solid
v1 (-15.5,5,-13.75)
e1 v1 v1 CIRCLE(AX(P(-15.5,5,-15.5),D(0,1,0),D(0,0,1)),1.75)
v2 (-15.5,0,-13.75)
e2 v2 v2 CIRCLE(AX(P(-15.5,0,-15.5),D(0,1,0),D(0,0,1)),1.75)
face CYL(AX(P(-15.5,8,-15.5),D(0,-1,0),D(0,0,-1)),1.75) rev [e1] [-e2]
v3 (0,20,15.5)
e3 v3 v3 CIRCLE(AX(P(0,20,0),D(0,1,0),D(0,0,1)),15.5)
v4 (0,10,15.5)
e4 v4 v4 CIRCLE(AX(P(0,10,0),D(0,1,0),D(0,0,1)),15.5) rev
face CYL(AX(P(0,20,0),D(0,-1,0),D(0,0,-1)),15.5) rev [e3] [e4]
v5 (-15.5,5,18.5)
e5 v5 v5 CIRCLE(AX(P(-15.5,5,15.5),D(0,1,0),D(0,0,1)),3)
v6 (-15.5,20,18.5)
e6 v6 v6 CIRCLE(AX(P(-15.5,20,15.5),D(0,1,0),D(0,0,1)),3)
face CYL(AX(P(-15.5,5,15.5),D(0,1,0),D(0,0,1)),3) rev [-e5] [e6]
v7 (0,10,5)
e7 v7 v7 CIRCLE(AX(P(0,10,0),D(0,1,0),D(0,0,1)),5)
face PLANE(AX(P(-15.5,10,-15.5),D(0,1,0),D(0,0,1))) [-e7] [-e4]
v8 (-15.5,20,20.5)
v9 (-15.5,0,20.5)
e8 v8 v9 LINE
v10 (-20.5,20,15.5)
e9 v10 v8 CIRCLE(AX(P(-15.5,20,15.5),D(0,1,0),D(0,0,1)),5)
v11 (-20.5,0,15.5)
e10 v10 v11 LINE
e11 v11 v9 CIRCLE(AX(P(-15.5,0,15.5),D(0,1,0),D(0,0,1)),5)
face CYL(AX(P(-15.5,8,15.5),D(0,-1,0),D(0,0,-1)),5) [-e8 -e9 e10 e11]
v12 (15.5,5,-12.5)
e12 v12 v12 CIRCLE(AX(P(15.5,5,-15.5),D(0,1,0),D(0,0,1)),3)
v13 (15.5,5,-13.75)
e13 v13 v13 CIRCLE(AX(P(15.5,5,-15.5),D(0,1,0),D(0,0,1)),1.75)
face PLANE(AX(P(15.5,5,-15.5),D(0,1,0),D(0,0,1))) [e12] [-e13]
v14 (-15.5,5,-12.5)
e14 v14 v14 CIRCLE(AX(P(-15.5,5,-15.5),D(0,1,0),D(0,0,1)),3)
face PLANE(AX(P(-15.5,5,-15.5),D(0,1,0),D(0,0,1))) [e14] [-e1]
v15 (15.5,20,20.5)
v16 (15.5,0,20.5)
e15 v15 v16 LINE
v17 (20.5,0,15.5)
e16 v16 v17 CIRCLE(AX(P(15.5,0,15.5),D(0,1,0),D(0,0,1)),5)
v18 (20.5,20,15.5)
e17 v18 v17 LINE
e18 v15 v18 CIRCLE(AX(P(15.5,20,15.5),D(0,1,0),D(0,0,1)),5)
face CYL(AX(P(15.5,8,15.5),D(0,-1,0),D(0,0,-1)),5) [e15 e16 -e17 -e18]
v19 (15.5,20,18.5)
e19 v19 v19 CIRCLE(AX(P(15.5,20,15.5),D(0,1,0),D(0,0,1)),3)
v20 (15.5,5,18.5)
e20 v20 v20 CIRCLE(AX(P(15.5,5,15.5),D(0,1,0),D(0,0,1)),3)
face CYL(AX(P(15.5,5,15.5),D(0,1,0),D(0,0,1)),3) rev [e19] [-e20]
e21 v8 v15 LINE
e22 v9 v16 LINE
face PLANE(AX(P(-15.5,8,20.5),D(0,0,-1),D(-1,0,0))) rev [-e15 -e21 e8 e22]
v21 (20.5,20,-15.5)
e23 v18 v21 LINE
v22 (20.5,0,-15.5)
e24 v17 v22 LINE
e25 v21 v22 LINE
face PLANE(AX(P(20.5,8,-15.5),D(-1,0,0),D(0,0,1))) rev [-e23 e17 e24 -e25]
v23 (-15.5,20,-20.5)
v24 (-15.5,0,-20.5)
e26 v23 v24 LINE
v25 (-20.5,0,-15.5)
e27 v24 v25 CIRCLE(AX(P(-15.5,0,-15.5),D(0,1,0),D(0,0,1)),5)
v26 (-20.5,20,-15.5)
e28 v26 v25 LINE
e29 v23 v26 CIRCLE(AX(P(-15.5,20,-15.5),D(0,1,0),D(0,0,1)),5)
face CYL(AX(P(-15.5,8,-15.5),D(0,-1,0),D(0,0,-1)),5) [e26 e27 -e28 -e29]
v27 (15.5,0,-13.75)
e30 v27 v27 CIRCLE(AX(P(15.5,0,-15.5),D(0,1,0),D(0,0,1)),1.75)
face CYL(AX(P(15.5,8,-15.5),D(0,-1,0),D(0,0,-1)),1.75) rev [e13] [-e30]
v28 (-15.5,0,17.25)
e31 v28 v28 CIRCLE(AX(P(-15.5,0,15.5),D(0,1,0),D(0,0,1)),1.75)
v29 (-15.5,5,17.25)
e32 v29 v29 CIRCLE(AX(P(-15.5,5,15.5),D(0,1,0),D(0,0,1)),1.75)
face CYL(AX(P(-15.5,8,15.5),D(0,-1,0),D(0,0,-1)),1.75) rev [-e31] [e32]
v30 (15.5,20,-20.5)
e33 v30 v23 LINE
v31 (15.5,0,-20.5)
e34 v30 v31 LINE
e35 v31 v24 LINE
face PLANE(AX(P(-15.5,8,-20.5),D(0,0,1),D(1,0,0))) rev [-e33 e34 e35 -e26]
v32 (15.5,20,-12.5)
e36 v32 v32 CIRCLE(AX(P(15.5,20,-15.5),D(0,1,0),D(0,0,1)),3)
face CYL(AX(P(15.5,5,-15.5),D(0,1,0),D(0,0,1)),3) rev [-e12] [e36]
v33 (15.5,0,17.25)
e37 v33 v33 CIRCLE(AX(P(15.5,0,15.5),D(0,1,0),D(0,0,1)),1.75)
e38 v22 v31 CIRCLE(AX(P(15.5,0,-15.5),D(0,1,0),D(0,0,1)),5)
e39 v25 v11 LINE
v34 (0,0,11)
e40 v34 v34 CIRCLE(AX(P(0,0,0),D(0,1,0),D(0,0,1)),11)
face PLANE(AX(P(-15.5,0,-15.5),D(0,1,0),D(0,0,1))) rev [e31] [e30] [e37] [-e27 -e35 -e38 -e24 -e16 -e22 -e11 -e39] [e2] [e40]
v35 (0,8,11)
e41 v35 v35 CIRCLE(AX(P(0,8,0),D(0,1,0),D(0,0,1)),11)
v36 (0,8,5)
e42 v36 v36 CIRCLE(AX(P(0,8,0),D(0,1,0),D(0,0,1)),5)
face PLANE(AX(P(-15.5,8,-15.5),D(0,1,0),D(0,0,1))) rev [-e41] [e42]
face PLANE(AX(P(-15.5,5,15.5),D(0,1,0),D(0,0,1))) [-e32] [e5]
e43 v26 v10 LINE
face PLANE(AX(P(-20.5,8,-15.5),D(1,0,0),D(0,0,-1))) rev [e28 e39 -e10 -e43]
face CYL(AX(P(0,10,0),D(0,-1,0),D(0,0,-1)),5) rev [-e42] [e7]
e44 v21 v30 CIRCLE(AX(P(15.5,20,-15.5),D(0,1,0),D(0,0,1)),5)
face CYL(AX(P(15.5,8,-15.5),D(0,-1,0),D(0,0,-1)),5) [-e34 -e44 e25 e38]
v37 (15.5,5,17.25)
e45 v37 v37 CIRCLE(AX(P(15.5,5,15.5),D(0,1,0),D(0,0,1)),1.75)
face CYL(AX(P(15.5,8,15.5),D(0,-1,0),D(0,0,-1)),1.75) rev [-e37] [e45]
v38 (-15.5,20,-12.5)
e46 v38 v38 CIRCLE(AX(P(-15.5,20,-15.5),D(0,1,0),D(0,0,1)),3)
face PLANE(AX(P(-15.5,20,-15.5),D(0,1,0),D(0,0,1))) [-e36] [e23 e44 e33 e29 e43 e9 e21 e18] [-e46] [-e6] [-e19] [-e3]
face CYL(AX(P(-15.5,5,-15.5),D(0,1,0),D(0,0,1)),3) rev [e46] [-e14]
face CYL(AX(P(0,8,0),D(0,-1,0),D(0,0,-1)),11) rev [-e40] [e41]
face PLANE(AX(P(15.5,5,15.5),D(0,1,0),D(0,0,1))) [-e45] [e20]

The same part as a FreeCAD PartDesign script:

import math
import FreeCAD as App
import Part
import Sketcher

V = App.Vector

doc = App.newDocument("Part")
body = doc.addObject("PartDesign::Body", "Body")

sketch1 = body.newObject("Sketcher::SketchObject", "Sketch")
sketch1.AttachmentSupport = (doc.getObject("XZ_Plane"), [""])
sketch1.MapMode = "FlatFace"
sketch1.addGeometry(Part.LineSegment(V(15.5, -20.5, 0), V(-15.5, -20.5, 0)), False)
sketch1.addGeometry(Part.ArcOfCircle(Part.Circle(V(-15.5, -15.5, 0), V(0, 0, 1), 5), math.radians(180), math.radians(270)), False)
sketch1.addGeometry(Part.LineSegment(V(-20.5, -15.5, 0), V(-20.5, 15.5, 0)), False)
sketch1.addGeometry(Part.ArcOfCircle(Part.Circle(V(-15.5, 15.5, 0), V(0, 0, 1), 5), math.radians(90), math.radians(180)), False)
sketch1.addGeometry(Part.LineSegment(V(-15.5, 20.5, 0), V(15.5, 20.5, 0)), False)
sketch1.addGeometry(Part.ArcOfCircle(Part.Circle(V(15.5, 15.5, 0), V(0, 0, 1), 5), math.radians(0), math.radians(90)), False)
sketch1.addGeometry(Part.LineSegment(V(20.5, 15.5, 0), V(20.5, -15.5, 0)), False)
sketch1.addGeometry(Part.ArcOfCircle(Part.Circle(V(15.5, -15.5, 0), V(0, 0, 1), 5), math.radians(-90), math.radians(0)), False)
sketch1.addGeometry(Part.Circle(V(15.5, 15.5, 0), V(0, 0, 1), 1.8), False)
sketch1.addGeometry(Part.Circle(V(-15.5, 15.5, 0), V(0, 0, 1), 1.8), False)
sketch1.addGeometry(Part.Circle(V(15.5, -15.5, 0), V(0, 0, 1), 1.8), False)
sketch1.addGeometry(Part.Circle(V(0, 0, 0), V(0, 0, 1), 11), False)
sketch1.addGeometry(Part.Circle(V(-15.5, -15.5, 0), V(0, 0, 1), 1.8), False)
sketch1.addConstraint(Sketcher.Constraint("Tangent", 0, 2, 1, 2))
sketch1.addConstraint(Sketcher.Constraint("Tangent", 1, 1, 2, 1))
sketch1.addConstraint(Sketcher.Constraint("Tangent", 2, 2, 3, 2))
sketch1.addConstraint(Sketcher.Constraint("Tangent", 3, 1, 4, 1))
sketch1.addConstraint(Sketcher.Constraint("Tangent", 4, 2, 5, 2))
sketch1.addConstraint(Sketcher.Constraint("Tangent", 5, 1, 6, 1))
sketch1.addConstraint(Sketcher.Constraint("Tangent", 6, 2, 7, 2))
sketch1.addConstraint(Sketcher.Constraint("Tangent", 7, 1, 0, 1))
sketch1.addConstraint(Sketcher.Constraint("Horizontal", 0))
sketch1.addConstraint(Sketcher.Constraint("Vertical", 2))
sketch1.addConstraint(Sketcher.Constraint("Horizontal", 4))
sketch1.addConstraint(Sketcher.Constraint("Vertical", 6))
sketch1.addConstraint(Sketcher.Constraint("Coincident", 11, 3, -1, 1))
sketch1.addConstraint(Sketcher.Constraint("Coincident", 8, 3, 5, 3))
sketch1.addConstraint(Sketcher.Constraint("Coincident", 9, 3, 3, 3))
sketch1.addConstraint(Sketcher.Constraint("Coincident", 10, 3, 7, 3))
sketch1.addConstraint(Sketcher.Constraint("Coincident", 12, 3, 1, 3))
sketch1.addConstraint(Sketcher.Constraint("Equal", 1, 3))
sketch1.addConstraint(Sketcher.Constraint("Equal", 3, 5))
sketch1.addConstraint(Sketcher.Constraint("Equal", 5, 7))
sketch1.addConstraint(Sketcher.Constraint("Equal", 8, 9))
sketch1.addConstraint(Sketcher.Constraint("Equal", 9, 10))
sketch1.addConstraint(Sketcher.Constraint("Equal", 10, 12))
sketch1.addConstraint(Sketcher.Constraint("Symmetric", 1, 3, 5, 3, -1, 1))
sketch1.addConstraint(Sketcher.Constraint("Equal", 4, 2))
sketch1.addConstraint(Sketcher.Constraint("Diameter", 11, 22.0))
sketch1.addConstraint(Sketcher.Constraint("Radius", 1, 5.0))
sketch1.addConstraint(Sketcher.Constraint("Diameter", 8, 3.5))
sketch1.addConstraint(Sketcher.Constraint("DistanceX", 0, 2, 0, 1, 31.0))
pad1 = body.newObject("PartDesign::Pad", "Pad")
pad1.Profile = sketch1
pad1.Length = 8
pad1.Reversed = True

sketch2 = body.newObject("Sketcher::SketchObject", "Sketch001")
sketch2.AttachmentSupport = (doc.getObject("XZ_Plane"), [""])
sketch2.MapMode = "FlatFace"
sketch2.AttachmentOffset = App.Placement(V(0, 0, -8), App.Rotation())
sketch2.addGeometry(Part.LineSegment(V(-20.5, -15.5, 0), V(-20.5, 15.5, 0)), False)
sketch2.addGeometry(Part.ArcOfCircle(Part.Circle(V(-15.5, 15.5, 0), V(0, 0, 1), 5), math.radians(90), math.radians(180)), False)
sketch2.addGeometry(Part.LineSegment(V(-15.5, 20.5, 0), V(15.5, 20.5, 0)), False)
sketch2.addGeometry(Part.ArcOfCircle(Part.Circle(V(15.5, 15.5, 0), V(0, 0, 1), 5), math.radians(0), math.radians(90)), False)
sketch2.addGeometry(Part.LineSegment(V(20.5, 15.5, 0), V(20.5, -15.5, 0)), False)
sketch2.addGeometry(Part.ArcOfCircle(Part.Circle(V(15.5, -15.5, 0), V(0, 0, 1), 5), math.radians(-90), math.radians(0)), False)
sketch2.addGeometry(Part.LineSegment(V(15.5, -20.5, 0), V(-15.5, -20.5, 0)), False)
sketch2.addGeometry(Part.ArcOfCircle(Part.Circle(V(-15.5, -15.5, 0), V(0, 0, 1), 5), math.radians(180), math.radians(270)), False)
sketch2.addGeometry(Part.Circle(V(-15.5, 15.5, 0), V(0, 0, 1), 1.8), False)
sketch2.addGeometry(Part.Circle(V(15.5, 15.5, 0), V(0, 0, 1), 1.8), False)
sketch2.addGeometry(Part.Circle(V(-15.5, -15.5, 0), V(0, 0, 1), 1.8), False)
sketch2.addGeometry(Part.Circle(V(0, 0, 0), V(0, 0, 1), 5), False)
sketch2.addGeometry(Part.Circle(V(15.5, -15.5, 0), V(0, 0, 1), 1.8), False)
sketch2.addConstraint(Sketcher.Constraint("Tangent", 0, 2, 1, 2))
sketch2.addConstraint(Sketcher.Constraint("Tangent", 1, 1, 2, 1))
sketch2.addConstraint(Sketcher.Constraint("Tangent", 2, 2, 3, 2))
sketch2.addConstraint(Sketcher.Constraint("Tangent", 3, 1, 4, 1))
sketch2.addConstraint(Sketcher.Constraint("Tangent", 4, 2, 5, 2))
sketch2.addConstraint(Sketcher.Constraint("Tangent", 5, 1, 6, 1))
sketch2.addConstraint(Sketcher.Constraint("Tangent", 6, 2, 7, 2))
sketch2.addConstraint(Sketcher.Constraint("Tangent", 7, 1, 0, 1))
sketch2.addConstraint(Sketcher.Constraint("Vertical", 0))
sketch2.addConstraint(Sketcher.Constraint("Horizontal", 2))
sketch2.addConstraint(Sketcher.Constraint("Vertical", 4))
sketch2.addConstraint(Sketcher.Constraint("Horizontal", 6))
sketch2.addConstraint(Sketcher.Constraint("Coincident", 11, 3, -1, 1))
sketch2.addConstraint(Sketcher.Constraint("Coincident", 8, 3, 1, 3))
sketch2.addConstraint(Sketcher.Constraint("Coincident", 9, 3, 3, 3))
sketch2.addConstraint(Sketcher.Constraint("Coincident", 10, 3, 7, 3))
sketch2.addConstraint(Sketcher.Constraint("Coincident", 12, 3, 5, 3))
sketch2.addConstraint(Sketcher.Constraint("Equal", 1, 3))
sketch2.addConstraint(Sketcher.Constraint("Equal", 3, 5))
sketch2.addConstraint(Sketcher.Constraint("Equal", 5, 7))
sketch2.addConstraint(Sketcher.Constraint("Equal", 8, 9))
sketch2.addConstraint(Sketcher.Constraint("Equal", 9, 10))
sketch2.addConstraint(Sketcher.Constraint("Equal", 7, 11))
sketch2.addConstraint(Sketcher.Constraint("Equal", 10, 12))
sketch2.addConstraint(Sketcher.Constraint("Symmetric", 1, 3, 5, 3, -1, 1))
sketch2.addConstraint(Sketcher.Constraint("Equal", 6, 0))
sketch2.addConstraint(Sketcher.Constraint("Diameter", 11, 10.0))
sketch2.addConstraint(Sketcher.Constraint("Diameter", 8, 3.5))
sketch2.addConstraint(Sketcher.Constraint("DistanceX", 2, 1, 2, 2, 31.0))
pad2 = body.newObject("PartDesign::Pad", "Pad001")
pad2.Profile = sketch2
pad2.Length = 2
pad2.Reversed = True

sketch3 = body.newObject("Sketcher::SketchObject", "Sketch002")
sketch3.AttachmentSupport = (doc.getObject("XZ_Plane"), [""])
sketch3.MapMode = "FlatFace"
sketch3.AttachmentOffset = App.Placement(V(0, 0, -10), App.Rotation())
sketch3.addGeometry(Part.LineSegment(V(-20.5, -15.5, 0), V(-20.5, 15.5, 0)), False)
sketch3.addGeometry(Part.ArcOfCircle(Part.Circle(V(-15.5, 15.5, 0), V(0, 0, 1), 5), math.radians(90), math.radians(180)), False)
sketch3.addGeometry(Part.LineSegment(V(-15.5, 20.5, 0), V(15.5, 20.5, 0)), False)
sketch3.addGeometry(Part.ArcOfCircle(Part.Circle(V(15.5, 15.5, 0), V(0, 0, 1), 5), math.radians(0), math.radians(90)), False)
sketch3.addGeometry(Part.LineSegment(V(20.5, 15.5, 0), V(20.5, -15.5, 0)), False)
sketch3.addGeometry(Part.ArcOfCircle(Part.Circle(V(15.5, -15.5, 0), V(0, 0, 1), 5), math.radians(-90), math.radians(0)), False)
sketch3.addGeometry(Part.LineSegment(V(15.5, -20.5, 0), V(-15.5, -20.5, 0)), False)
sketch3.addGeometry(Part.ArcOfCircle(Part.Circle(V(-15.5, -15.5, 0), V(0, 0, 1), 5), math.radians(180), math.radians(270)), False)
sketch3.addGeometry(Part.Circle(V(-15.5, 15.5, 0), V(0, 0, 1), 1.8), False)
sketch3.addGeometry(Part.Circle(V(15.5, 15.5, 0), V(0, 0, 1), 1.8), False)
sketch3.addGeometry(Part.Circle(V(-15.5, -15.5, 0), V(0, 0, 1), 1.8), False)
sketch3.addGeometry(Part.Circle(V(0, 0, 0), V(0, 0, 1), 15.5), False)
sketch3.addGeometry(Part.Circle(V(15.5, -15.5, 0), V(0, 0, 1), 1.8), False)
sketch3.addConstraint(Sketcher.Constraint("Tangent", 0, 2, 1, 2))
sketch3.addConstraint(Sketcher.Constraint("Tangent", 1, 1, 2, 1))
sketch3.addConstraint(Sketcher.Constraint("Tangent", 2, 2, 3, 2))
sketch3.addConstraint(Sketcher.Constraint("Tangent", 3, 1, 4, 1))
sketch3.addConstraint(Sketcher.Constraint("Tangent", 4, 2, 5, 2))
sketch3.addConstraint(Sketcher.Constraint("Tangent", 5, 1, 6, 1))
sketch3.addConstraint(Sketcher.Constraint("Tangent", 6, 2, 7, 2))
sketch3.addConstraint(Sketcher.Constraint("Tangent", 7, 1, 0, 1))
sketch3.addConstraint(Sketcher.Constraint("Vertical", 0))
sketch3.addConstraint(Sketcher.Constraint("Horizontal", 2))
sketch3.addConstraint(Sketcher.Constraint("Vertical", 4))
sketch3.addConstraint(Sketcher.Constraint("Horizontal", 6))
sketch3.addConstraint(Sketcher.Constraint("Coincident", 11, 3, -1, 1))
sketch3.addConstraint(Sketcher.Constraint("Coincident", 8, 3, 1, 3))
sketch3.addConstraint(Sketcher.Constraint("Coincident", 9, 3, 3, 3))
sketch3.addConstraint(Sketcher.Constraint("Coincident", 10, 3, 7, 3))
sketch3.addConstraint(Sketcher.Constraint("Coincident", 12, 3, 5, 3))
sketch3.addConstraint(Sketcher.Constraint("Equal", 1, 3))
sketch3.addConstraint(Sketcher.Constraint("Equal", 3, 5))
sketch3.addConstraint(Sketcher.Constraint("Equal", 5, 7))
sketch3.addConstraint(Sketcher.Constraint("Equal", 8, 9))
sketch3.addConstraint(Sketcher.Constraint("Equal", 9, 10))
sketch3.addConstraint(Sketcher.Constraint("Equal", 10, 12))
sketch3.addConstraint(Sketcher.Constraint("Symmetric", 1, 3, 5, 3, -1, 1))
sketch3.addConstraint(Sketcher.Constraint("Equal", 6, 0))
sketch3.addConstraint(Sketcher.Constraint("Diameter", 11, 31.0))
sketch3.addConstraint(Sketcher.Constraint("Radius", 1, 5.0))
sketch3.addConstraint(Sketcher.Constraint("Diameter", 8, 3.5))
sketch3.addConstraint(Sketcher.Constraint("DistanceX", 2, 1, 2, 2, 31.0))
pad3 = body.newObject("PartDesign::Pad", "Pad002")
pad3.Profile = sketch3
pad3.Length = 10
pad3.Reversed = True

sketch4 = body.newObject("Sketcher::SketchObject", "Sketch003")
sketch4.AttachmentSupport = (doc.getObject("XZ_Plane"), [""])
sketch4.MapMode = "FlatFace"
sketch4.AttachmentOffset = App.Placement(V(0, 0, -20), App.Rotation())
sketch4.addGeometry(Part.Circle(V(-15.5, -15.5, 0), V(0, 0, 1), 3), False)
sketch4.addGeometry(Part.Circle(V(15.5, -15.5, 0), V(0, 0, 1), 3), False)
sketch4.addGeometry(Part.Circle(V(15.5, 15.5, 0), V(0, 0, 1), 3), False)
sketch4.addGeometry(Part.Circle(V(-15.5, 15.5, 0), V(0, 0, 1), 3), False)
sketch4.addConstraint(Sketcher.Constraint("Equal", 0, 1))
sketch4.addConstraint(Sketcher.Constraint("Equal", 1, 2))
sketch4.addConstraint(Sketcher.Constraint("Equal", 2, 3))
sketch4.addConstraint(Sketcher.Constraint("Symmetric", 0, 3, 2, 3, -1, 1))
sketch4.addConstraint(Sketcher.Constraint("Symmetric", 1, 3, 3, 3, -1, 1))
sketch4.addConstraint(Sketcher.Constraint("Symmetric", 0, 3, 1, 3, -2))
sketch4.addConstraint(Sketcher.Constraint("Diameter", 0, 6.0))
sketch4.addConstraint(Sketcher.Constraint("DistanceX", 0, 3, 1, 3, 31.0))
sketch4.addConstraint(Sketcher.Constraint("DistanceY", 1, 3, 2, 3, 31.0))
pocket1 = body.newObject("PartDesign::Pocket", "Pocket")
pocket1.Profile = sketch4
pocket1.Length = 15
pocket1.Reversed = True

doc.recompute()
